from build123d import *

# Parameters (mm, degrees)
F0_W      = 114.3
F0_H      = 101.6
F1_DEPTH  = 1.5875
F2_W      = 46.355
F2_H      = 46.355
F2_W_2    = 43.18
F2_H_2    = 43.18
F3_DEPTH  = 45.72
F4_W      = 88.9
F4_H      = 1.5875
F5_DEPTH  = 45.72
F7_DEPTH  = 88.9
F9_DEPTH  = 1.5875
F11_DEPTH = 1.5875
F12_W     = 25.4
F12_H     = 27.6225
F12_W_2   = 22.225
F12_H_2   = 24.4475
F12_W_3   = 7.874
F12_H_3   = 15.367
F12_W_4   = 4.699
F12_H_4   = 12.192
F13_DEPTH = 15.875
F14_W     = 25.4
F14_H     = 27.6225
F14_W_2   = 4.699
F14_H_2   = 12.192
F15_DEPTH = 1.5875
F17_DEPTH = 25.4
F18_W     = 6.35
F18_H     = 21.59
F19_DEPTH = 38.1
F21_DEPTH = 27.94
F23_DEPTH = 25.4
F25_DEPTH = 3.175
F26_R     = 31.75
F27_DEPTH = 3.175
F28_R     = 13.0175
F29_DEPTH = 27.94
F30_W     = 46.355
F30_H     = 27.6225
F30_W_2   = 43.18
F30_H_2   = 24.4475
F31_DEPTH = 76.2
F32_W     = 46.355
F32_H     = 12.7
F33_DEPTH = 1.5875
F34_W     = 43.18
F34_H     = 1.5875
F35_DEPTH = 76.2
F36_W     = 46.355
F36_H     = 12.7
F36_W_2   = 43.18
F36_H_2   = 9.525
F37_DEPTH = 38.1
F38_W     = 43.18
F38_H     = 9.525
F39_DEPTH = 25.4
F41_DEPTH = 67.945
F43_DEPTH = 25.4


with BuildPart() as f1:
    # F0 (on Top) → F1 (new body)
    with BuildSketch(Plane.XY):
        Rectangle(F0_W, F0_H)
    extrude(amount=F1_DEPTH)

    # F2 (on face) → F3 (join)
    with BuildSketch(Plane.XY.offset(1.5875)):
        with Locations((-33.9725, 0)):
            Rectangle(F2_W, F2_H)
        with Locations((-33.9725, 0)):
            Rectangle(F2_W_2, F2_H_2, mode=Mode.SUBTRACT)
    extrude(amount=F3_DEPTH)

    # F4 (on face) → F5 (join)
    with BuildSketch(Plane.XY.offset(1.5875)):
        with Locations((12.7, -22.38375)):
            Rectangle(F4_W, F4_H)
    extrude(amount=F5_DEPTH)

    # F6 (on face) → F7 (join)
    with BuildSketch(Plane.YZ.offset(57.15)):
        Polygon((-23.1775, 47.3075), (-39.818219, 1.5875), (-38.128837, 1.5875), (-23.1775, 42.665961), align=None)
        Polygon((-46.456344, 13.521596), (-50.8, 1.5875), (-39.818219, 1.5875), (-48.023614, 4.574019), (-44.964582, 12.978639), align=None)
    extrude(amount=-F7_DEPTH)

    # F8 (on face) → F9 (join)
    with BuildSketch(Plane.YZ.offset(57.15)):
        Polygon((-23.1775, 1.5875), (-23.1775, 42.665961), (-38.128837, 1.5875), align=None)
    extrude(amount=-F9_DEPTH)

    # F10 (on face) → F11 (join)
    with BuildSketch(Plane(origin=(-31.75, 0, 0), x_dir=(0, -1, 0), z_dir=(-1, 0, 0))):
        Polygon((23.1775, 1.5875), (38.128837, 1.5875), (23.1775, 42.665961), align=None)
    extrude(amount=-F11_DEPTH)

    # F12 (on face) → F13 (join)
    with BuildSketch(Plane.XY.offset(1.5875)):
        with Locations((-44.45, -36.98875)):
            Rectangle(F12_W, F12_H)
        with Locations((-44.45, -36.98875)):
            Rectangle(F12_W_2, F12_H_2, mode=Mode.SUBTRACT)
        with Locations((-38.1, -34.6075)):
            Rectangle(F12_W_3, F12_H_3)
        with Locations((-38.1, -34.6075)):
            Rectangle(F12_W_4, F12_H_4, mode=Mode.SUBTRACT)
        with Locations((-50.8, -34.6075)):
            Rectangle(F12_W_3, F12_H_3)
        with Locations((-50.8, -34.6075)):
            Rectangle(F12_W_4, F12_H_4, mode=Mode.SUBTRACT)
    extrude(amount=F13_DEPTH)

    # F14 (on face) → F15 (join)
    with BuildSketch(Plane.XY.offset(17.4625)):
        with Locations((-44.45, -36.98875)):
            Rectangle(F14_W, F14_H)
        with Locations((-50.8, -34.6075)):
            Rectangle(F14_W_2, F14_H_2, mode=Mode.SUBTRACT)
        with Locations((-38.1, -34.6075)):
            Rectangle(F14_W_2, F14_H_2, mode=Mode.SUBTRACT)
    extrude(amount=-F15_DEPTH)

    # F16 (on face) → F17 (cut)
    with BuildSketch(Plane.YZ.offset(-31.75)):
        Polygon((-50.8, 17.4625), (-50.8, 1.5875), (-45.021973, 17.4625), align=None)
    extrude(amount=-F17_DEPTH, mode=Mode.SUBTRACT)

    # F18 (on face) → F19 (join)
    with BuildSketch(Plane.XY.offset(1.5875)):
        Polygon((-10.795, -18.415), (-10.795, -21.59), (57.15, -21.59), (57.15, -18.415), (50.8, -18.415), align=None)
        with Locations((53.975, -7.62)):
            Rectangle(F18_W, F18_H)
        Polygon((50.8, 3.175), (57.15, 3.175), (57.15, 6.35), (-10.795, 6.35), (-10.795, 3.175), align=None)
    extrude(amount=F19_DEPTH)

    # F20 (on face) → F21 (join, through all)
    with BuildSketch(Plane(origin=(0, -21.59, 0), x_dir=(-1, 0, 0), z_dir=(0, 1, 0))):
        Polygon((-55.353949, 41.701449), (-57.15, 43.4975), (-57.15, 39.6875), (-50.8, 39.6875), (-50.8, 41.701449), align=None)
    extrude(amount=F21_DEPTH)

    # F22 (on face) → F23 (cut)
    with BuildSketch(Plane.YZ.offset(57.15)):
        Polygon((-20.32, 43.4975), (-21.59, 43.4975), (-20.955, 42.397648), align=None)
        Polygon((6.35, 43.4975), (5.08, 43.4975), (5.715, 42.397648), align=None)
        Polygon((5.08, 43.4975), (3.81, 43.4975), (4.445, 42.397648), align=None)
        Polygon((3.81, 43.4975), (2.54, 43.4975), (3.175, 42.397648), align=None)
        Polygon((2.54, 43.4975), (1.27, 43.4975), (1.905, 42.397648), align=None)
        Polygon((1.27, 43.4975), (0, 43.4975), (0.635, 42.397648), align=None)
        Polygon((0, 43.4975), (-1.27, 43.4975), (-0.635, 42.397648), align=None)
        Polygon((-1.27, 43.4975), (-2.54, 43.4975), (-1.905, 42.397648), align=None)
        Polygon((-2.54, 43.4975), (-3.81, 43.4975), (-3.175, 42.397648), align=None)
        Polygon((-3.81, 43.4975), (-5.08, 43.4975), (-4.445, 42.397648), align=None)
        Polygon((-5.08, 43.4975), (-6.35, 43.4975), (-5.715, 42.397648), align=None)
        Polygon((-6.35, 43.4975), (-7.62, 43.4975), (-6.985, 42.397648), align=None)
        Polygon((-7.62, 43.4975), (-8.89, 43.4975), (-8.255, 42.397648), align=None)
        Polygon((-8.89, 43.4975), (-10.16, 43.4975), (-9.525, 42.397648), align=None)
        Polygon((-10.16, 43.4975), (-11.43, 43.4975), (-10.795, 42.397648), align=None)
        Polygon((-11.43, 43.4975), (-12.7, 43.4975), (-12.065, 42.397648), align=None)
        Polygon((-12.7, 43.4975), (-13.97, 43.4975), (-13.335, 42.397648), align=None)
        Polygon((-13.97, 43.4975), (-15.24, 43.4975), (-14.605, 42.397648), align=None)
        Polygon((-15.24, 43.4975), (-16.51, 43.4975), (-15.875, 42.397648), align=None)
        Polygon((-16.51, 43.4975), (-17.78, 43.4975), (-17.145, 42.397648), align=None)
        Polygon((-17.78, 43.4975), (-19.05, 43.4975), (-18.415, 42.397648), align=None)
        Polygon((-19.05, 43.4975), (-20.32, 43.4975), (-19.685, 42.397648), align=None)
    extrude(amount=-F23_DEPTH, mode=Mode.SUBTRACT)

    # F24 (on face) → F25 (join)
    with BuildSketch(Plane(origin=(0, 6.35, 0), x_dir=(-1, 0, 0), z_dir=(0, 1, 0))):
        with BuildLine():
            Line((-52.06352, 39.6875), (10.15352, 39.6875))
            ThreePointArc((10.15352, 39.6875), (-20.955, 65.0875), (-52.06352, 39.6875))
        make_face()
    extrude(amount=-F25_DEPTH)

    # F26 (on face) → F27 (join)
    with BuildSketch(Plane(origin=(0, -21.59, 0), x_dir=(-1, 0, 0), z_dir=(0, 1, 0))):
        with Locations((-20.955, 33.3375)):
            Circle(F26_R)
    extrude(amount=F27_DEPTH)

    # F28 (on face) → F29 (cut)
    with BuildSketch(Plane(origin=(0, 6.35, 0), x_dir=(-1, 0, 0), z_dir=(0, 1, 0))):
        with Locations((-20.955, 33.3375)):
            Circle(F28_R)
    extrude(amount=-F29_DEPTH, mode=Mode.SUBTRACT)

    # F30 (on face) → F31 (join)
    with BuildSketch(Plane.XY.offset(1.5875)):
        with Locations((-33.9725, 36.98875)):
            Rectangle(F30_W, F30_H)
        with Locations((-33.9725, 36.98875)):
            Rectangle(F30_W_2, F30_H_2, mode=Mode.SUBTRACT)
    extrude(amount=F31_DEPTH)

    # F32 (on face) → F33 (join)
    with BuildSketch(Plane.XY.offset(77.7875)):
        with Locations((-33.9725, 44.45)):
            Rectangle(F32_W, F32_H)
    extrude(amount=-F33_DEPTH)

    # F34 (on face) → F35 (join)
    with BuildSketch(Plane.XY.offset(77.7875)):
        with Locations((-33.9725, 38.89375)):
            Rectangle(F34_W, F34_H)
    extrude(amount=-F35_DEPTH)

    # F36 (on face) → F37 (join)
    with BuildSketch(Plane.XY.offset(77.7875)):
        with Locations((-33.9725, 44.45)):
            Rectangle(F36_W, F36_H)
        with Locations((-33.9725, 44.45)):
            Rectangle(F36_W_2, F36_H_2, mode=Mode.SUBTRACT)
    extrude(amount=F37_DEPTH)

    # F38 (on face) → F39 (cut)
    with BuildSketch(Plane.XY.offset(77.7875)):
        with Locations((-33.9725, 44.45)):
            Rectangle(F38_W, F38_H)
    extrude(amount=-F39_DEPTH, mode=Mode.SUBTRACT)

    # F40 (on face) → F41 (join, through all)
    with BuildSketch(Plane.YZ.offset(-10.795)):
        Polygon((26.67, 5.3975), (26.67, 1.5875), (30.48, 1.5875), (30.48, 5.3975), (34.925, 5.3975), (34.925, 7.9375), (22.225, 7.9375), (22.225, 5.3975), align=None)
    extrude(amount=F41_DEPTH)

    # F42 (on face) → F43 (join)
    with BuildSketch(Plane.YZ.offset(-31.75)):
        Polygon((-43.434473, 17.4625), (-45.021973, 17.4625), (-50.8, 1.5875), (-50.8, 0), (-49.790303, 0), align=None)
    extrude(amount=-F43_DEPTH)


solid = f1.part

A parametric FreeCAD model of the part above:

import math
import FreeCAD as App
import Part
import Sketcher
Q = App.Units.Quantity


def add_polygon(sketch, points):
    """Adds a closed chain of lines whose ends are joined by coincident constraints."""
    first, n = sketch.GeometryCount, len(points)
    for a, b in zip(points, points[1:] + points[:1]):
        sketch.addGeometry(Part.LineSegment(App.Vector(*a, 0), App.Vector(*b, 0)), False)
    for i in range(n):
        sketch.addConstraint(Sketcher.Constraint("Coincident", first + i, 2, first + (i + 1) % n, 1))

doc = App.newDocument("Part")
body = doc.addObject("PartDesign::Body", "Body")

# Sketch on XY plane
sketch1 = body.newObject("Sketcher::SketchObject", "Sketch")
sketch1.AttachmentSupport = (doc.getObject("XY_Plane"), [""])
sketch1.MapMode = "FlatFace"
add_polygon(sketch1, [(-57, 51), (-57, -51), (57, -51), (57, 51)])  # lines 0-3
sketch1.addConstraint([
    Sketcher.Constraint("Vertical", 0),
    Sketcher.Constraint("Horizontal", 1),
    Sketcher.Constraint("Vertical", 2),
    Sketcher.Constraint("Horizontal", 3),
    Sketcher.Constraint("Symmetric", 0, 2, 2, 2, -1, 1),
    Sketcher.Constraint("DistanceY", 0, 2, 0, 1, Q("4 in")),
    Sketcher.Constraint("DistanceX", 1, 1, 1, 2, Q("4.5 in")),
])
pad1 = body.newObject("PartDesign::Pad", "Pad")
pad1.Profile = sketch1
pad1.Length = Q("0.0625 in")

# Sketch on XY plane
sketch2 = body.newObject("Sketcher::SketchObject", "Sketch001")
sketch2.AttachmentSupport = (doc.getObject("XY_Plane"), [""])
sketch2.MapMode = "FlatFace"
sketch2.AttachmentOffset = App.Placement(App.Vector(0, 0, 0.0625 * 25.4), App.Rotation())
add_polygon(sketch2, [(-57, 23), (-57, -23), (-11, -23), (-11, 23)])  # lines 0-3
add_polygon(sketch2, [(-12, -22), (-56, -22), (-56, 22), (-12, 22)])  # lines 4-7
sketch2.addConstraint([
    Sketcher.Constraint("Vertical", 0),
    Sketcher.Constraint("Horizontal", 1),
    Sketcher.Constraint("Vertical", 2),
    Sketcher.Constraint("Horizontal", 3),
    Sketcher.Constraint("Horizontal", 4),
    Sketcher.Constraint("Vertical", 5),
    Sketcher.Constraint("Horizontal", 6),
    Sketcher.Constraint("Vertical", 7),
    Sketcher.Constraint("Equal", 3, 0),
    Sketcher.Constraint("Equal", 6, 5),
    Sketcher.Constraint("DistanceX", 4, 2, 4, 1, Q("1.7 in")),
    Sketcher.Constraint("DistanceX", 1, 1, 1, 2, Q("1.825 in")),
    Sketcher.Constraint("DistanceX", 0, 2, -1, 1, Q("2.25 in")),
    Sketcher.Constraint("DistanceY", 4, 2, -1, 1, Q("0.85 in")),
    Sketcher.Constraint("DistanceX", 4, 2, -1, 1, Q("2.1875 in")),
    Sketcher.Constraint("DistanceY", 0, 2, 4, 2, Q("0.0625 in")),
])
pad2 = body.newObject("PartDesign::Pad", "Pad001")
pad2.Profile = sketch2
pad2.Length = Q("1.8 in")

# Sketch on XY plane
sketch3 = body.newObject("Sketcher::SketchObject", "Sketch002")
sketch3.AttachmentSupport = (doc.getObject("XY_Plane"), [""])
sketch3.MapMode = "FlatFace"
sketch3.AttachmentOffset = App.Placement(App.Vector(0, 0, 0.0625 * 25.4), App.Rotation())
add_polygon(sketch3, [(-31.8, -21.6), (-31.8, -23.2), (57.1, -23.2), (57.1, -21.6)])  # lines 0-3
sketch3.addConstraint([
    Sketcher.Constraint("Vertical", 0),
    Sketcher.Constraint("Horizontal", 1),
    Sketcher.Constraint("Vertical", 2),
    Sketcher.Constraint("Horizontal", 3),
    Sketcher.Constraint("DistanceX", 1, 1, 1, 2, Q("3.5 in")),
    Sketcher.Constraint("DistanceY", 0, 2, 0, 1, Q("0.0625 in")),
    Sketcher.Constraint("DistanceX", 0, 2, -1, 1, Q("1.25 in")),
    Sketcher.Constraint("DistanceY", 2, 2, -1, 1, Q("0.85 in")),
])
pad3 = body.newObject("PartDesign::Pad", "Pad002")
pad3.Profile = sketch3
pad3.Length = Q("1.8 in")

# Sketch on YZ plane
sketch4 = body.newObject("Sketcher::SketchObject", "Sketch003")
sketch4.AttachmentSupport = (doc.getObject("YZ_Plane"), [""])
sketch4.MapMode = "FlatFace"
sketch4.AttachmentOffset = App.Placement(App.Vector(0, 0, 2.25 * 25.4), App.Rotation())
add_polygon(sketch4, [(-23.2, 47.3), (-39.8, 1.6), (-38.1, 1.6), (-23.2, 42.7)])  # lines 0-3
add_polygon(sketch4, [(-46.5, 13.5), (-50.8, 1.6), (-39.8, 1.6), (-48, 4.6), (-45, 13)])  # lines 4-8
sketch4.addConstraint([
    Sketcher.Constraint("Horizontal", 1),
    Sketcher.Constraint("Vertical", 3),
    Sketcher.Constraint("Horizontal", 5),
    Sketcher.Constraint("Coincident", 5, 2, 0, 2),
    Sketcher.Constraint("Parallel", 0, 2),
    Sketcher.Constraint("Parallel", 2, 4),
    Sketcher.Constraint("Perpendicular", 4, 6),
    Sketcher.Constraint("Perpendicular", 6, 7),
    Sketcher.Constraint("Perpendicular", 7, 8),
    Sketcher.Constraint("DistanceX", 4, 2, -1, 1, Q("2 in")),
    Sketcher.Constraint("Angle", 0, Q("-110 deg")),
    Sketcher.Constraint("Distance", 4, Q("0.5 in")),
    Sketcher.Constraint("DistanceY", 1, 2, 3, 2, Q("1.8 in")),
    Sketcher.Constraint("Distance", 8, Q("0.0625 in")),
    Sketcher.Constraint("DistanceY", -1, 1, 0, 2, Q("0.0625 in")),
    Sketcher.Constraint("DistanceX", 2, 2, -1, 1, Q("0.9125 in")),
    Sketcher.Constraint("DistanceY", 3, 1, 3, 2, 4.641539),
])
pad4 = body.newObject("PartDesign::Pad", "Pad003")
pad4.Profile = sketch4
pad4.Length = Q("3.5 in")
pad4.Reversed = True

# Sketch on YZ plane
sketch5 = body.newObject("Sketcher::SketchObject", "Sketch004")
sketch5.AttachmentSupport = (doc.getObject("YZ_Plane"), [""])
sketch5.MapMode = "FlatFace"
sketch5.AttachmentOffset = App.Placement(App.Vector(0, 0, 2.25 * 25.4), App.Rotation())
add_polygon(sketch5, [(-23, 2), (-23, 43), (-38, 2)])  # lines 0-2
sketch5.addConstraint([
    Sketcher.Constraint("Vertical", 0),
    Sketcher.Constraint("Horizontal", 2),
    Sketcher.Constraint("Angle", 1, Q("-110 deg")),
    Sketcher.Constraint("DistanceY", -1, 1, 1, 2, Q("0.0625 in")),
    Sketcher.Constraint("DistanceX", 0, 2, -1, 1, Q("0.9125 in")),
    Sketcher.Constraint("DistanceY", 0, 1, 0, 2, 41.078461),
])
pad5 = body.newObject("PartDesign::Pad", "Pad004")
pad5.Profile = sketch5
pad5.Length = Q("0.0625 in")
pad5.Reversed = True

# Sketch on YZ plane
sketch6 = body.newObject("Sketcher::SketchObject", "Sketch005")
sketch6.AttachmentSupport = (doc.getObject("YZ_Plane"), [""])
sketch6.MapMode = "FlatFace"
sketch6.AttachmentOffset = App.Placement(App.Vector(0, 0, -1.25 * 25.4), App.Rotation())
add_polygon(sketch6, [(-23, 2), (-38, 2), (-23, 43)])  # lines 0-2
sketch6.addConstraint([
    Sketcher.Constraint("Horizontal", 0),
    Sketcher.Constraint("Vertical", 2),
    Sketcher.Constraint("Angle", 1, Q("70 deg")),
    Sketcher.Constraint("DistanceY", -1, 1, 0, 2, Q("0.0625 in")),
    Sketcher.Constraint("DistanceX", 1, 2, -1, 1, Q("0.9125 in")),
    Sketcher.Constraint("DistanceY", 2, 2, 2, 1, 41.078461),
])
pad6 = body.newObject("PartDesign::Pad", "Pad005")
pad6.Profile = sketch6
pad6.Length = Q("0.0625 in")

# Sketch on XY plane
sketch7 = body.newObject("Sketcher::SketchObject", "Sketch006")
sketch7.AttachmentSupport = (doc.getObject("XY_Plane"), [""])
sketch7.MapMode = "FlatFace"
sketch7.AttachmentOffset = App.Placement(App.Vector(0, 0, 0.0625 * 25.4), App.Rotation())
add_polygon(sketch7, [(-57.1, -23.2), (-57.1, -50.8), (-31.8, -50.8), (-31.8, -23.2)])  # lines 0-3
add_polygon(sketch7, [(-33.3, -49.2), (-55.6, -49.2), (-55.6, -24.8), (-33.3, -24.8)])  # lines 4-7
add_polygon(sketch7, [(-42, -26.9), (-42, -42.3), (-34.2, -42.3), (-34.2, -26.9)])  # lines 8-11
add_polygon(sketch7, [(-35.8, -40.7), (-40.4, -40.7), (-40.4, -28.5), (-35.8, -28.5)])  # lines 12-15
add_polygon(sketch7, [(-54.7, -26.9), (-54.7, -42.3), (-46.9, -42.3), (-46.9, -26.9)])  # lines 16-19
add_polygon(sketch7, [(-48.5, -40.7), (-53.1, -40.7), (-53.1, -28.5), (-48.5, -28.5)])  # lines 20-23
sketch7.addConstraint([
    Sketcher.Constraint("Vertical", 0),
    Sketcher.Constraint("Horizontal", 1),
    Sketcher.Constraint("Vertical", 2),
    Sketcher.Constraint("Horizontal", 3),
    Sketcher.Constraint("Horizontal", 4),
    Sketcher.Constraint("Vertical", 5),
    Sketcher.Constraint("Horizontal", 6),
    Sketcher.Constraint("Vertical", 7),
    Sketcher.Constraint("Vertical", 8),
    Sketcher.Constraint("Horizontal", 9),
    Sketcher.Constraint("Vertical", 10),
    Sketcher.Constraint("Horizontal", 11),
    Sketcher.Constraint("Horizontal", 12),
    Sketcher.Constraint("Vertical", 13),
    Sketcher.Constraint("Horizontal", 14),
    Sketcher.Constraint("Vertical", 15),
    Sketcher.Constraint("Vertical", 16),
    Sketcher.Constraint("Horizontal", 17),
    Sketcher.Constraint("Vertical", 18),
    Sketcher.Constraint("Horizontal", 19),
    Sketcher.Constraint("Horizontal", 20),
    Sketcher.Constraint("Vertical", 21),
    Sketcher.Constraint("Horizontal", 22),
    Sketcher.Constraint("Vertical", 23),
    Sketcher.Constraint("Horizontal", 9, 2, 16, 2),
    Sketcher.Constraint("Horizontal", 11, 2, 18, 2),
    Sketcher.Constraint("Horizontal", 15, 2, 20, 2),
    Sketcher.Constraint("Horizontal", 14, 2, 21, 2),
    Sketcher.Constraint("Equal", 11, 17),
    Sketcher.Constraint("Equal", 14, 20),
    Sketcher.Constraint("DistanceX", 1, 1, 1, 2, Q("1 in")),
    Sketcher.Constraint("DistanceY", 0, 2, -1, 1, Q("2 in")),
    Sketcher.Constraint("DistanceX", 9, 1, 9, 2, Q("0.31 in")),
    Sketcher.Constraint("DistanceY", 13, 1, 13, 2, Q("0.48 in")),
    Sketcher.Constraint("DistanceX", 16, 2, 8, 2, Q("0.5 in")),
    Sketcher.Constraint("DistanceX", 4, 2, 4, 1, Q("0.875 in")),
    Sketcher.Constraint("DistanceX", 12, 2, 12, 1, Q("0.185 in")),
    Sketcher.Constraint("DistanceY", 8, 2, 8, 1, Q("0.605 in")),
    Sketcher.Constraint("DistanceX", 0, 2, -1, 1, Q("2.25 in")),
    Sketcher.Constraint("DistanceY", 10, 2, -1, 1, Q("1.06 in")),
    Sketcher.Constraint("DistanceY", 8, 2, 6, 2, Q("0.69 in")),
    Sketcher.Constraint("DistanceX", 12, 2, 7, 2, Q("0.28 in")),
    Sketcher.Constraint("DistanceY", 13, 2, 2, 2, Q("0.21 in")),
    Sketcher.Constraint("DistanceY", 0, 2, 0, 1, Q("1.0875 in")),
    Sketcher.Constraint("DistanceY", 5, 1, 5, 2, Q("0.9625 in")),
    Sketcher.Constraint("DistanceX", 4, 2, -1, 1, Q("2.1875 in")),
    Sketcher.Constraint("DistanceX", 8, 2, -1, 1, Q("1.655 in")),
    Sketcher.Constraint("DistanceX", 16, 2, 20, 2, Q("0.0625 in")),
])
pad7 = body.newObject("PartDesign::Pad", "Pad006")
pad7.Profile = sketch7
pad7.Length = Q("0.625 in")

# Sketch on XY plane
sketch8 = body.newObject("Sketcher::SketchObject", "Sketch007")
sketch8.AttachmentSupport = (doc.getObject("XY_Plane"), [""])
sketch8.MapMode = "FlatFace"
sketch8.AttachmentOffset = App.Placement(App.Vector(0, 0, 0.6875 * 25.4), App.Rotation())
add_polygon(sketch8, [(-57.1, -23.2), (-57.1, -50.8), (-31.8, -50.8), (-31.8, -23.2)])  # lines 0-3
add_polygon(sketch8, [(-48.5, -40.7), (-53.1, -40.7), (-53.1, -28.5), (-48.5, -28.5)])  # lines 4-7
add_polygon(sketch8, [(-35.8, -40.7), (-40.4, -40.7), (-40.4, -28.5), (-35.8, -28.5)])  # lines 8-11
sketch8.addConstraint([
    Sketcher.Constraint("Vertical", 0),
    Sketcher.Constraint("Horizontal", 1),
    Sketcher.Constraint("Vertical", 2),
    Sketcher.Constraint("Horizontal", 3),
    Sketcher.Constraint("Horizontal", 4),
    Sketcher.Constraint("Vertical", 5),
    Sketcher.Constraint("Horizontal", 6),
    Sketcher.Constraint("Vertical", 7),
    Sketcher.Constraint("Horizontal", 8),
    Sketcher.Constraint("Vertical", 9),
    Sketcher.Constraint("Horizontal", 10),
    Sketcher.Constraint("Vertical", 11),
    Sketcher.Constraint("Horizontal", 7, 2, 8, 2),
    Sketcher.Constraint("Horizontal", 6, 2, 9, 2),
    Sketcher.Constraint("Equal", 6, 8),
    Sketcher.Constraint("DistanceX", 1, 1, 1, 2, Q("1 in")),
    Sketcher.Constraint("DistanceY", 0, 2, -1, 1, Q("2 in")),
    Sketcher.Constraint("DistanceY", 5, 1, 5, 2, Q("0.48 in")),
    Sketcher.Constraint("DistanceX", 4, 2, 8, 2, Q("0.5 in")),
    Sketcher.Constraint("DistanceX", 4, 2, 4, 1, Q("0.185 in")),
    Sketcher.Constraint("DistanceX", 0, 2, -1, 1, Q("2.25 in")),
    Sketcher.Constraint("DistanceY", 4, 2, 3, 2, Q("0.69 in")),
    Sketcher.Constraint("DistanceY", 0, 2, 0, 1, Q("1.0875 in")),
    Sketcher.Constraint("DistanceX", 4, 2, -1, 1, Q("2.0925 in")),
])
pad8 = body.newObject("PartDesign::Pad", "Pad007")
pad8.Profile = sketch8
pad8.Length = Q("0.0625 in")
pad8.Reversed = True

# Sketch on YZ plane
sketch9 = body.newObject("Sketcher::SketchObject", "Sketch008")
sketch9.AttachmentSupport = (doc.getObject("YZ_Plane"), [""])
sketch9.MapMode = "FlatFace"
sketch9.AttachmentOffset = App.Placement(App.Vector(0, 0, -1.25 * 25.4), App.Rotation())
add_polygon(sketch9, [(-51, 17), (-51, 2), (-45, 17)])  # lines 0-2
sketch9.addConstraint([
    Sketcher.Constraint("Vertical", 0),
    Sketcher.Constraint("Horizontal", 2),
    Sketcher.Constraint("DistanceX", 0, 2, -1, 1, Q("2 in")),
    Sketcher.Constraint("Angle", 1, Q("70.000001 deg")),
    Sketcher.Constraint("DistanceY", 0, 2, 0, 1, Q("0.625 in")),
    Sketcher.Constraint("DistanceY", -1, 1, 0, 2, Q("0.0625 in")),
])
pocket1 = body.newObject("PartDesign::Pocket", "Pocket")
pocket1.Profile = sketch9
pocket1.Length = Q("1 in")

# Sketch on XY plane
sketch10 = body.newObject("Sketcher::SketchObject", "Sketch009")
sketch10.AttachmentSupport = (doc.getObject("XY_Plane"), [""])
sketch10.MapMode = "FlatFace"
sketch10.AttachmentOffset = App.Placement(App.Vector(0, 0, 0.0625 * 25.4), App.Rotation())
add_polygon(sketch10, [(-10.8, -18.4), (-10.8, -21.6), (57.1, -21.6), (57.1, 6.3), (-10.8, 6.3), (-10.8, 3.2), (50.8, 3.2), (50.8, -18.4)])  # lines 0-7
sketch10.addConstraint([
    Sketcher.Constraint("Vertical", 0),
    Sketcher.Constraint("Horizontal", 1),
    Sketcher.Constraint("Vertical", 2),
    Sketcher.Constraint("Horizontal", 3),
    Sketcher.Constraint("Vertical", 4),
    Sketcher.Constraint("Horizontal", 5),
    Sketcher.Constraint("Vertical", 6),
    Sketcher.Constraint("Horizontal", 7),
    Sketcher.Constraint("Vertical", 0, 2, 3, 2),
    Sketcher.Constraint("Equal", 0, 4),
    Sketcher.Constraint("DistanceY", 2, 1, 2, 2, Q("1.1 in")),
    Sketcher.Constraint("DistanceX", -1, 1, 5, 2, Q("2 in")),
    Sketcher.Constraint("DistanceY", 6, 2, 6, 1, Q("0.85 in")),
    Sketcher.Constraint("DistanceX", 1, 1, 1, 2, Q("2.675 in")),
    Sketcher.Constraint("DistanceX", 5, 1, 5, 2, Q("2.425 in")),
    Sketcher.Constraint("DistanceY", 0, 2, -1, 1, Q("0.85 in")),
])
pad9 = body.newObject("PartDesign::Pad", "Pad008")
pad9.Profile = sketch10
pad9.Length = Q("1.5 in")

# Sketch on XZ plane
sketch11 = body.newObject("Sketcher::SketchObject", "Sketch010")
sketch11.AttachmentSupport = (doc.getObject("XZ_Plane"), [""])
sketch11.MapMode = "FlatFace"
sketch11.AttachmentOffset = App.Placement(App.Vector(0, 0, 0.85 * 25.4), App.Rotation())
add_polygon(sketch11, [(55.4, 41.7), (57.1, 43.5), (57.1, 39.7), (50.8, 39.7), (50.8, 41.7)])  # lines 0-4
sketch11.addConstraint([
    Sketcher.Constraint("Vertical", 1),
    Sketcher.Constraint("Horizontal", 2),
    Sketcher.Constraint("Vertical", 3),
    Sketcher.Constraint("Horizontal", 4),
    Sketcher.Constraint("DistanceX", -1, 1, 2, 2, Q("2 in")),
    Sketcher.Constraint("Angle", 0, Q("45 deg")),
    Sketcher.Constraint("Distance", 0, Q("0.1 in")),
    Sketcher.Constraint("DistanceX", 2, 2, 2, 1, Q("0.25 in")),
    Sketcher.Constraint("DistanceY", 1, 2, 1, 1, Q("0.15 in")),
    Sketcher.Constraint("DistanceY", -1, 1, 1, 2, Q("1.5625 in")),
])
pad10 = body.newObject("PartDesign::Pad", "Pad009")
pad10.Profile = sketch11
pad10.Length = Q("1.1 in")
pad10.Reversed = True

# Sketch on YZ plane
sketch12 = body.newObject("Sketcher::SketchObject", "Sketch011")
sketch12.AttachmentSupport = (doc.getObject("YZ_Plane"), [""])
sketch12.MapMode = "FlatFace"
sketch12.AttachmentOffset = App.Placement(App.Vector(0, 0, 2.25 * 25.4), App.Rotation())
add_polygon(sketch12, [(-20.3, 43.5), (-21.6, 43.5), (-21, 42.4)])  # lines 0-2
add_polygon(sketch12, [(6.3, 43.5), (5.1, 43.5), (5.7, 42.4)])  # lines 3-5
add_polygon(sketch12, [(5.1, 43.5), (3.8, 43.5), (4.4, 42.4)])  # lines 6-8
add_polygon(sketch12, [(3.8, 43.5), (2.5, 43.5), (3.2, 42.4)])  # lines 9-11
add_polygon(sketch12, [(2.5, 43.5), (1.3, 43.5), (1.9, 42.4)])  # lines 12-14
add_polygon(sketch12, [(1.3, 43.5), (0, 43.5), (0.6, 42.4)])  # lines 15-17
add_polygon(sketch12, [(0, 43.5), (-1.3, 43.5), (-0.6, 42.4)])  # lines 18-20
add_polygon(sketch12, [(-1.3, 43.5), (-2.5, 43.5), (-1.9, 42.4)])  # lines 21-23
add_polygon(sketch12, [(-2.5, 43.5), (-3.8, 43.5), (-3.2, 42.4)])  # lines 24-26
add_polygon(sketch12, [(-3.8, 43.5), (-5.1, 43.5), (-4.4, 42.4)])  # lines 27-29
add_polygon(sketch12, [(-5.1, 43.5), (-6.3, 43.5), (-5.7, 42.4)])  # lines 30-32
add_polygon(sketch12, [(-6.3, 43.5), (-7.6, 43.5), (-7, 42.4)])  # lines 33-35
add_polygon(sketch12, [(-7.6, 43.5), (-8.9, 43.5), (-8.3, 42.4)])  # lines 36-38
add_polygon(sketch12, [(-8.9, 43.5), (-10.2, 43.5), (-9.5, 42.4)])  # lines 39-41
add_polygon(sketch12, [(-10.2, 43.5), (-11.4, 43.5), (-10.8, 42.4)])  # lines 42-44
add_polygon(sketch12, [(-11.4, 43.5), (-12.7, 43.5), (-12.1, 42.4)])  # lines 45-47
add_polygon(sketch12, [(-12.7, 43.5), (-14, 43.5), (-13.3, 42.4)])  # lines 48-50
add_polygon(sketch12, [(-14, 43.5), (-15.2, 43.5), (-14.6, 42.4)])  # lines 51-53
add_polygon(sketch12, [(-15.2, 43.5), (-16.5, 43.5), (-15.9, 42.4)])  # lines 54-56
add_polygon(sketch12, [(-16.5, 43.5), (-17.8, 43.5), (-17.1, 42.4)])  # lines 57-59
add_polygon(sketch12, [(-17.8, 43.5), (-19.1, 43.5), (-18.4, 42.4)])  # lines 60-62
add_polygon(sketch12, [(-19.1, 43.5), (-20.3, 43.5), (-19.7, 42.4)])  # lines 63-65
sketch12.addConstraint([
    Sketcher.Constraint("Horizontal", 0),
    Sketcher.Constraint("Horizontal", 3),
    Sketcher.Constraint("Horizontal", 6),
    Sketcher.Constraint("Horizontal", 9),
    Sketcher.Constraint("Horizontal", 12),
    Sketcher.Constraint("Horizontal", 15),
    Sketcher.Constraint("Horizontal", 18),
    Sketcher.Constraint("Horizontal", 21),
    Sketcher.Constraint("Horizontal", 24),
    Sketcher.Constraint("Horizontal", 27),
    Sketcher.Constraint("Horizontal", 30),
    Sketcher.Constraint("Horizontal", 33),
    Sketcher.Constraint("Horizontal", 36),
    Sketcher.Constraint("Horizontal", 39),
    Sketcher.Constraint("Horizontal", 42),
    Sketcher.Constraint("Horizontal", 45),
    Sketcher.Constraint("Horizontal", 48),
    Sketcher.Constraint("Horizontal", 51),
    Sketcher.Constraint("Horizontal", 54),
    Sketcher.Constraint("Horizontal", 57),
    Sketcher.Constraint("Horizontal", 60),
    Sketcher.Constraint("Horizontal", 63),
    Sketcher.Constraint("Coincident", 8, 2, 3, 2),
    Sketcher.Constraint("Coincident", 11, 2, 6, 2),
    Sketcher.Constraint("Coincident", 14, 2, 9, 2),
    Sketcher.Constraint("Coincident", 17, 2, 12, 2),
    Sketcher.Constraint("Coincident", 20, 2, 15, 2),
    Sketcher.Constraint("Coincident", 23, 2, 18, 2),
    Sketcher.Constraint("Coincident", 26, 2, 21, 2),
    Sketcher.Constraint("Coincident", 29, 2, 24, 2),
    Sketcher.Constraint("Coincident", 32, 2, 27, 2),
    Sketcher.Constraint("Coincident", 35, 2, 30, 2),
    Sketcher.Constraint("Coincident", 38, 2, 33, 2),
    Sketcher.Constraint("Coincident", 41, 2, 36, 2),
    Sketcher.Constraint("Coincident", 44, 2, 39, 2),
    Sketcher.Constraint("Coincident", 47, 2, 42, 2),
    Sketcher.Constraint("Coincident", 50, 2, 45, 2),
    Sketcher.Constraint("Coincident", 53, 2, 48, 2),
    Sketcher.Constraint("Coincident", 56, 2, 51, 2),
    Sketcher.Constraint("Coincident", 59, 2, 54, 2),
    Sketcher.Constraint("Coincident", 62, 2, 57, 2),
    Sketcher.Constraint("Coincident", 63, 2, 2, 2),
    Sketcher.Constraint("Coincident", 65, 2, 60, 2),
    Sketcher.Constraint("Symmetric", 16, 2, 19, 2, -2),
    Sketcher.Constraint("Symmetric", 13, 2, 22, 2, -2),
    Sketcher.Constraint("Symmetric", 10, 2, 25, 2, -2),
    Sketcher.Constraint("Symmetric", 7, 2, 28, 2, -2),
    Sketcher.Constraint("Symmetric", 4, 2, 31, 2, -2),
    Sketcher.Constraint("PointOnObject", 15, 2, -2),
    Sketcher.Constraint("Parallel", 1, 4),
    Sketcher.Constraint("Parallel", 2, 5),
    Sketcher.Constraint("Parallel", 4, 7),
    Sketcher.Constraint("Parallel", 5, 8),
    Sketcher.Constraint("Parallel", 7, 10),
    Sketcher.Constraint("Parallel", 8, 11),
    Sketcher.Constraint("Parallel", 10, 13),
    Sketcher.Constraint("Parallel", 11, 14),
    Sketcher.Constraint("Parallel", 13, 16),
    Sketcher.Constraint("Parallel", 14, 17),
    Sketcher.Constraint("Parallel", 16, 19),
    Sketcher.Constraint("Parallel", 17, 20),
    Sketcher.Constraint("Parallel", 19, 22),
    Sketcher.Constraint("Parallel", 22, 25),
    Sketcher.Constraint("Parallel", 25, 28),
    Sketcher.Constraint("Parallel", 28, 31),
    Sketcher.Constraint("Parallel", 31, 34),
    Sketcher.Constraint("Parallel", 32, 35),
    Sketcher.Constraint("Parallel", 34, 37),
    Sketcher.Constraint("Parallel", 35, 38),
    Sketcher.Constraint("Parallel", 37, 40),
    Sketcher.Constraint("Parallel", 38, 41),
    Sketcher.Constraint("Parallel", 40, 43),
    Sketcher.Constraint("Parallel", 41, 44),
    Sketcher.Constraint("Parallel", 43, 46),
    Sketcher.Constraint("Parallel", 44, 47),
    Sketcher.Constraint("Parallel", 46, 49),
    Sketcher.Constraint("Parallel", 47, 50),
    Sketcher.Constraint("Parallel", 49, 52),
    Sketcher.Constraint("Parallel", 50, 53),
    Sketcher.Constraint("Parallel", 52, 55),
    Sketcher.Constraint("Parallel", 53, 56),
    Sketcher.Constraint("Parallel", 55, 58),
    Sketcher.Constraint("Parallel", 56, 59),
    Sketcher.Constraint("Parallel", 58, 61),
    Sketcher.Constraint("Parallel", 59, 62),
    Sketcher.Constraint("Parallel", 61, 64),
    Sketcher.Constraint("Parallel", 62, 65),
    Sketcher.Constraint("Horizontal", 1, 2, 4, 2),
    Sketcher.Constraint("Horizontal", 4, 2, 7, 2),
    Sketcher.Constraint("Horizontal", 7, 2, 10, 2),
    Sketcher.Constraint("Horizontal", 10, 2, 13, 2),
    Sketcher.Constraint("Horizontal", 13, 2, 16, 2),
    Sketcher.Constraint("Horizontal", 31, 2, 34, 2),
    Sketcher.Constraint("Horizontal", 34, 2, 37, 2),
    Sketcher.Constraint("Horizontal", 37, 2, 40, 2),
    Sketcher.Constraint("Horizontal", 40, 2, 43, 2),
    Sketcher.Constraint("Horizontal", 43, 2, 46, 2),
    Sketcher.Constraint("Horizontal", 46, 2, 49, 2),
    Sketcher.Constraint("Horizontal", 49, 2, 52, 2),
    Sketcher.Constraint("Horizontal", 52, 2, 55, 2),
    Sketcher.Constraint("Horizontal", 55, 2, 58, 2),
    Sketcher.Constraint("Horizontal", 58, 2, 61, 2),
    Sketcher.Constraint("Horizontal", 61, 2, 64, 2),
    Sketcher.Constraint("Angle", 1, Q("-59.999994 deg")),
    Sketcher.Constraint("DistanceX", 0, 2, 0, 1, Q("0.05 in")),
    Sketcher.Constraint("DistanceY", -1, 1, 0, 2, Q("1.7125 in")),
])
pocket2 = body.newObject("PartDesign::Pocket", "Pocket001")
pocket2.Profile = sketch12
pocket2.Length = Q("1 in")

# Sketch on XZ plane
sketch13 = body.newObject("Sketcher::SketchObject", "Sketch012")
sketch13.AttachmentSupport = (doc.getObject("XZ_Plane"), [""])
sketch13.MapMode = "FlatFace"
sketch13.AttachmentOffset = App.Placement(App.Vector(0, 0, -0.25 * 25.4), App.Rotation())
sketch13.addGeometry([
    Part.LineSegment(App.Vector(52, 40, 0), App.Vector(-10, 40, 0)),
    Part.ArcOfCircle(Part.Circle(App.Vector(21, 33, 0), App.Vector(0, 0, 1), 32), math.radians(12), math.radians(168)),
], False)
sketch13.addConstraint([
    Sketcher.Constraint("Coincident", 0, 1, 1, 1),
    Sketcher.Constraint("Coincident", 1, 2, 0, 2),
    Sketcher.Constraint("Horizontal", 0),
    Sketcher.Constraint("Radius", 1, Q("1.25 in")),
    Sketcher.Constraint("DistanceY", 1, 3, 0, 1, Q("0.25 in")),
    Sketcher.Constraint("DistanceX", -1, 1, 1, 3, Q("0.825 in")),
    Sketcher.Constraint("DistanceY", -1, 1, 1, 3, Q("1.3125 in")),
])
pad11 = body.newObject("PartDesign::Pad", "Pad010")
pad11.Profile = sketch13
pad11.Length = Q("0.125 in")

# Sketch on XZ plane
sketch14 = body.newObject("Sketcher::SketchObject", "Sketch013")
sketch14.AttachmentSupport = (doc.getObject("XZ_Plane"), [""])
sketch14.MapMode = "FlatFace"
sketch14.AttachmentOffset = App.Placement(App.Vector(0, 0, 0.85 * 25.4), App.Rotation())
sketch14.addGeometry(Part.Circle(App.Vector(21, 33, 0), App.Vector(0, 0, 1), 32), False)
sketch14.addConstraint([
    Sketcher.Constraint("Diameter", 0, Q("2.5 in")),
    Sketcher.Constraint("DistanceX", -1, 1, 0, 3, Q("0.825 in")),
    Sketcher.Constraint("DistanceY", -1, 1, 0, 3, Q("1.3125 in")),
])
pad12 = body.newObject("PartDesign::Pad", "Pad011")
pad12.Profile = sketch14
pad12.Length = Q("0.125 in")
pad12.Reversed = True

# Sketch on XZ plane
sketch15 = body.newObject("Sketcher::SketchObject", "Sketch014")
sketch15.AttachmentSupport = (doc.getObject("XZ_Plane"), [""])
sketch15.MapMode = "FlatFace"
sketch15.AttachmentOffset = App.Placement(App.Vector(0, 0, -0.25 * 25.4), App.Rotation())
sketch15.addGeometry(Part.Circle(App.Vector(21, 33, 0), App.Vector(0, 0, 1), 13), False)
sketch15.addConstraint([
    Sketcher.Constraint("Diameter", 0, Q("1.025 in")),
    Sketcher.Constraint("DistanceX", -1, 1, 0, 3, Q("0.825 in")),
    Sketcher.Constraint("DistanceY", -1, 1, 0, 3, Q("1.3125 in")),
])
pocket3 = body.newObject("PartDesign::Pocket", "Pocket002")
pocket3.Profile = sketch15
pocket3.Length = Q("1.1 in")
pocket3.Reversed = True

# Sketch on XY plane
sketch16 = body.newObject("Sketcher::SketchObject", "Sketch015")
sketch16.AttachmentSupport = (doc.getObject("XY_Plane"), [""])
sketch16.MapMode = "FlatFace"
sketch16.AttachmentOffset = App.Placement(App.Vector(0, 0, 0.0625 * 25.4), App.Rotation())
add_polygon(sketch16, [(-57, 51), (-57, 23), (-11, 23), (-11, 51)])  # lines 0-3
add_polygon(sketch16, [(-12, 25), (-56, 25), (-56, 49), (-12, 49)])  # lines 4-7
sketch16.addConstraint([
    Sketcher.Constraint("Vertical", 0),
    Sketcher.Constraint("Horizontal", 1),
    Sketcher.Constraint("Vertical", 2),
    Sketcher.Constraint("Horizontal", 3),
    Sketcher.Constraint("Horizontal", 4),
    Sketcher.Constraint("Vertical", 5),
    Sketcher.Constraint("Horizontal", 6),
    Sketcher.Constraint("Vertical", 7),
    Sketcher.Constraint("DistanceX", 4, 2, 4, 1, Q("1.7 in")),
    Sketcher.Constraint("DistanceY", -1, 1, 2, 2, Q("2 in")),
    Sketcher.Constraint("DistanceX", 1, 1, 1, 2, Q("1.825 in")),
    Sketcher.Constraint("DistanceX", 0, 2, -1, 1, Q("2.25 in")),
    Sketcher.Constraint("DistanceY", 0, 2, 0, 1, Q("1.0875 in")),
    Sketcher.Constraint("DistanceY", 5, 1, 5, 2, Q("0.9625 in")),
    Sketcher.Constraint("DistanceX", 4, 2, -1, 1, Q("2.1875 in")),
    Sketcher.Constraint("DistanceY", -1, 1, 4, 2, Q("0.975 in")),
])
pad13 = body.newObject("PartDesign::Pad", "Pad012")
pad13.Profile = sketch16
pad13.Length = Q("3 in")

# Sketch on XY plane
sketch17 = body.newObject("Sketcher::SketchObject", "Sketch016")
sketch17.AttachmentSupport = (doc.getObject("XY_Plane"), [""])
sketch17.MapMode = "FlatFace"
sketch17.AttachmentOffset = App.Placement(App.Vector(0, 0, 3.0625 * 25.4), App.Rotation())
add_polygon(sketch17, [(-57, 51), (-57, 38), (-11, 38), (-11, 51)])  # lines 0-3
sketch17.addConstraint([
    Sketcher.Constraint("Vertical", 0),
    Sketcher.Constraint("Horizontal", 1),
    Sketcher.Constraint("Vertical", 2),
    Sketcher.Constraint("Horizontal", 3),
    Sketcher.Constraint("DistanceY", 0, 2, 0, 1, Q("0.5 in")),
    Sketcher.Constraint("DistanceY", -1, 1, 2, 2, Q("2 in")),
    Sketcher.Constraint("DistanceX", 1, 1, 1, 2, Q("1.825 in")),
    Sketcher.Constraint("DistanceX", 0, 2, -1, 1, Q("2.25 in")),
])
pad14 = body.newObject("PartDesign::Pad", "Pad013")
pad14.Profile = sketch17
pad14.Length = Q("0.0625 in")
pad14.Reversed = True

# Sketch on XY plane
sketch18 = body.newObject("Sketcher::SketchObject", "Sketch017")
sketch18.AttachmentSupport = (doc.getObject("XY_Plane"), [""])
sketch18.MapMode = "FlatFace"
sketch18.AttachmentOffset = App.Placement(App.Vector(0, 0, 3.0625 * 25.4), App.Rotation())
add_polygon(sketch18, [(-55.6, 39.7), (-55.6, 38.1), (-12.4, 38.1), (-12.4, 39.7)])  # lines 0-3
sketch18.addConstraint([
    Sketcher.Constraint("Vertical", 0),
    Sketcher.Constraint("Horizontal", 1),
    Sketcher.Constraint("Vertical", 2),
    Sketcher.Constraint("Horizontal", 3),
    Sketcher.Constraint("DistanceX", 1, 1, 1, 2, Q("1.7 in")),
    Sketcher.Constraint("DistanceY", -1, 1, 0, 2, Q("1.5 in")),
    Sketcher.Constraint("DistanceY", 0, 2, 0, 1, Q("0.0625 in")),
    Sketcher.Constraint("DistanceX", 0, 2, -1, 1, Q("2.1875 in")),
])
pad15 = body.newObject("PartDesign::Pad", "Pad014")
pad15.Profile = sketch18
pad15.Length = Q("3 in")
pad15.Reversed = True

# Sketch on XY plane
sketch19 = body.newObject("Sketcher::SketchObject", "Sketch018")
sketch19.AttachmentSupport = (doc.getObject("XY_Plane"), [""])
sketch19.MapMode = "FlatFace"
sketch19.AttachmentOffset = App.Placement(App.Vector(0, 0, 3.0625 * 25.4), App.Rotation())
add_polygon(sketch19, [(-57, 51), (-57, 38), (-11, 38), (-11, 51)])  # lines 0-3
add_polygon(sketch19, [(-12, 40), (-56, 40), (-56, 49), (-12, 49)])  # lines 4-7
sketch19.addConstraint([
    Sketcher.Constraint("Vertical", 0),
    Sketcher.Constraint("Horizontal", 1),
    Sketcher.Constraint("Vertical", 2),
    Sketcher.Constraint("Horizontal", 3),
    Sketcher.Constraint("Horizontal", 4),
    Sketcher.Constraint("Vertical", 5),
    Sketcher.Constraint("Horizontal", 6),
    Sketcher.Constraint("Vertical", 7),
    Sketcher.Constraint("DistanceX", 4, 2, 4, 1, Q("1.7 in")),
    Sketcher.Constraint("DistanceY", 0, 2, 0, 1, Q("0.5 in")),
    Sketcher.Constraint("DistanceY", -1, 1, 2, 2, Q("2 in")),
    Sketcher.Constraint("DistanceX", 1, 1, 1, 2, Q("1.825 in")),
    Sketcher.Constraint("DistanceY", 5, 1, 5, 2, Q("0.375 in")),
    Sketcher.Constraint("DistanceX", 0, 2, -1, 1, Q("2.25 in")),
    Sketcher.Constraint("DistanceX", 4, 2, -1, 1, Q("2.1875 in")),
    Sketcher.Constraint("DistanceY", -1, 1, 4, 2, Q("1.5625 in")),
])
pad16 = body.newObject("PartDesign::Pad", "Pad015")
pad16.Profile = sketch19
pad16.Length = Q("1.5 in")

# Sketch on XY plane
sketch20 = body.newObject("Sketcher::SketchObject", "Sketch019")
sketch20.AttachmentSupport = (doc.getObject("XY_Plane"), [""])
sketch20.MapMode = "FlatFace"
sketch20.AttachmentOffset = App.Placement(App.Vector(0, 0, 3.0625 * 25.4), App.Rotation())
add_polygon(sketch20, [(-56, 49), (-56, 40), (-12, 40), (-12, 49)])  # lines 0-3
sketch20.addConstraint([
    Sketcher.Constraint("Vertical", 0),
    Sketcher.Constraint("Horizontal", 1),
    Sketcher.Constraint("Vertical", 2),
    Sketcher.Constraint("Horizontal", 3),
    Sketcher.Constraint("DistanceX", 1, 1, 1, 2, Q("1.7 in")),
    Sketcher.Constraint("DistanceY", 0, 2, 0, 1, Q("0.375 in")),
    Sketcher.Constraint("DistanceX", 0, 2, -1, 1, Q("2.1875 in")),
    Sketcher.Constraint("DistanceY", -1, 1, 0, 2, Q("1.5625 in")),
])
pocket4 = body.newObject("PartDesign::Pocket", "Pocket003")
pocket4.Profile = sketch20
pocket4.Length = Q("1 in")

# Sketch on YZ plane
sketch21 = body.newObject("Sketcher::SketchObject", "Sketch020")
sketch21.AttachmentSupport = (doc.getObject("YZ_Plane"), [""])
sketch21.MapMode = "FlatFace"
sketch21.AttachmentOffset = App.Placement(App.Vector(0, 0, -0.425 * 25.4), App.Rotation())
add_polygon(sketch21, [(26.7, 5.4), (26.7, 1.6), (30.5, 1.6), (30.5, 5.4), (34.9, 5.4), (34.9, 7.9), (22.2, 7.9), (22.2, 5.4)])  # lines 0-7
sketch21.addConstraint([
    Sketcher.Constraint("Vertical", 0),
    Sketcher.Constraint("Horizontal", 1),
    Sketcher.Constraint("Vertical", 2),
    Sketcher.Constraint("Horizontal", 3),
    Sketcher.Constraint("Vertical", 4),
    Sketcher.Constraint("Horizontal", 5),
    Sketcher.Constraint("Vertical", 6),
    Sketcher.Constraint("Horizontal", 7),
    Sketcher.Constraint("Horizontal", 3, 2, 6, 2),
    Sketcher.Constraint("Equal", 3, 7),
    Sketcher.Constraint("Equal", 1, 0),
    Sketcher.Constraint("DistanceX", 5, 2, 5, 1, Q("0.5 in")),
    Sketcher.Constraint("DistanceY", 4, 1, 4, 2, Q("0.1 in")),
    Sketcher.Constraint("DistanceX", 1, 1, 1, 2, Q("0.15 in")),
    Sketcher.Constraint("DistanceX", -1, 1, 1, 2, Q("1.2 in")),
    Sketcher.Constraint("DistanceY", -1, 1, 0, 2, Q("0.0625 in")),
])
pad17 = body.newObject("PartDesign::Pad", "Pad016")
pad17.Profile = sketch21
pad17.Length = Q("2.675 in")

# Sketch on YZ plane
sketch22 = body.newObject("Sketcher::SketchObject", "Sketch021")
sketch22.AttachmentSupport = (doc.getObject("YZ_Plane"), [""])
sketch22.MapMode = "FlatFace"
sketch22.AttachmentOffset = App.Placement(App.Vector(0, 0, -1.25 * 25.4), App.Rotation())
add_polygon(sketch22, [(-43.4, 17.5), (-45, 17.5), (-50.8, 1.6), (-50.8, 0), (-49.8, 0)])  # lines 0-4
sketch22.addConstraint([
    Sketcher.Constraint("Horizontal", 0),
    Sketcher.Constraint("Vertical", 2),
    Sketcher.Constraint("Horizontal", 3),
    Sketcher.Constraint("PointOnObject", 2, 2, -1),
    Sketcher.Constraint("Parallel", 1, 4),
    Sketcher.Constraint("Equal", 0, 2),
    Sketcher.Constraint("DistanceX", 1, 2, -1, 1, Q("2 in")),
    Sketcher.Constraint("Angle", 1, Q("-109.999999 deg")),
    Sketcher.Constraint("DistanceX", 0, 2, 0, 1, Q("0.0625 in")),
    Sketcher.Constraint("DistanceY", -1, 1, 0, 2, Q("0.6875 in")),
])
pad18 = body.newObject("PartDesign::Pad", "Pad017")
pad18.Profile = sketch22
pad18.Length = Q("1 in")
pad18.Reversed = True

doc.recompute()
